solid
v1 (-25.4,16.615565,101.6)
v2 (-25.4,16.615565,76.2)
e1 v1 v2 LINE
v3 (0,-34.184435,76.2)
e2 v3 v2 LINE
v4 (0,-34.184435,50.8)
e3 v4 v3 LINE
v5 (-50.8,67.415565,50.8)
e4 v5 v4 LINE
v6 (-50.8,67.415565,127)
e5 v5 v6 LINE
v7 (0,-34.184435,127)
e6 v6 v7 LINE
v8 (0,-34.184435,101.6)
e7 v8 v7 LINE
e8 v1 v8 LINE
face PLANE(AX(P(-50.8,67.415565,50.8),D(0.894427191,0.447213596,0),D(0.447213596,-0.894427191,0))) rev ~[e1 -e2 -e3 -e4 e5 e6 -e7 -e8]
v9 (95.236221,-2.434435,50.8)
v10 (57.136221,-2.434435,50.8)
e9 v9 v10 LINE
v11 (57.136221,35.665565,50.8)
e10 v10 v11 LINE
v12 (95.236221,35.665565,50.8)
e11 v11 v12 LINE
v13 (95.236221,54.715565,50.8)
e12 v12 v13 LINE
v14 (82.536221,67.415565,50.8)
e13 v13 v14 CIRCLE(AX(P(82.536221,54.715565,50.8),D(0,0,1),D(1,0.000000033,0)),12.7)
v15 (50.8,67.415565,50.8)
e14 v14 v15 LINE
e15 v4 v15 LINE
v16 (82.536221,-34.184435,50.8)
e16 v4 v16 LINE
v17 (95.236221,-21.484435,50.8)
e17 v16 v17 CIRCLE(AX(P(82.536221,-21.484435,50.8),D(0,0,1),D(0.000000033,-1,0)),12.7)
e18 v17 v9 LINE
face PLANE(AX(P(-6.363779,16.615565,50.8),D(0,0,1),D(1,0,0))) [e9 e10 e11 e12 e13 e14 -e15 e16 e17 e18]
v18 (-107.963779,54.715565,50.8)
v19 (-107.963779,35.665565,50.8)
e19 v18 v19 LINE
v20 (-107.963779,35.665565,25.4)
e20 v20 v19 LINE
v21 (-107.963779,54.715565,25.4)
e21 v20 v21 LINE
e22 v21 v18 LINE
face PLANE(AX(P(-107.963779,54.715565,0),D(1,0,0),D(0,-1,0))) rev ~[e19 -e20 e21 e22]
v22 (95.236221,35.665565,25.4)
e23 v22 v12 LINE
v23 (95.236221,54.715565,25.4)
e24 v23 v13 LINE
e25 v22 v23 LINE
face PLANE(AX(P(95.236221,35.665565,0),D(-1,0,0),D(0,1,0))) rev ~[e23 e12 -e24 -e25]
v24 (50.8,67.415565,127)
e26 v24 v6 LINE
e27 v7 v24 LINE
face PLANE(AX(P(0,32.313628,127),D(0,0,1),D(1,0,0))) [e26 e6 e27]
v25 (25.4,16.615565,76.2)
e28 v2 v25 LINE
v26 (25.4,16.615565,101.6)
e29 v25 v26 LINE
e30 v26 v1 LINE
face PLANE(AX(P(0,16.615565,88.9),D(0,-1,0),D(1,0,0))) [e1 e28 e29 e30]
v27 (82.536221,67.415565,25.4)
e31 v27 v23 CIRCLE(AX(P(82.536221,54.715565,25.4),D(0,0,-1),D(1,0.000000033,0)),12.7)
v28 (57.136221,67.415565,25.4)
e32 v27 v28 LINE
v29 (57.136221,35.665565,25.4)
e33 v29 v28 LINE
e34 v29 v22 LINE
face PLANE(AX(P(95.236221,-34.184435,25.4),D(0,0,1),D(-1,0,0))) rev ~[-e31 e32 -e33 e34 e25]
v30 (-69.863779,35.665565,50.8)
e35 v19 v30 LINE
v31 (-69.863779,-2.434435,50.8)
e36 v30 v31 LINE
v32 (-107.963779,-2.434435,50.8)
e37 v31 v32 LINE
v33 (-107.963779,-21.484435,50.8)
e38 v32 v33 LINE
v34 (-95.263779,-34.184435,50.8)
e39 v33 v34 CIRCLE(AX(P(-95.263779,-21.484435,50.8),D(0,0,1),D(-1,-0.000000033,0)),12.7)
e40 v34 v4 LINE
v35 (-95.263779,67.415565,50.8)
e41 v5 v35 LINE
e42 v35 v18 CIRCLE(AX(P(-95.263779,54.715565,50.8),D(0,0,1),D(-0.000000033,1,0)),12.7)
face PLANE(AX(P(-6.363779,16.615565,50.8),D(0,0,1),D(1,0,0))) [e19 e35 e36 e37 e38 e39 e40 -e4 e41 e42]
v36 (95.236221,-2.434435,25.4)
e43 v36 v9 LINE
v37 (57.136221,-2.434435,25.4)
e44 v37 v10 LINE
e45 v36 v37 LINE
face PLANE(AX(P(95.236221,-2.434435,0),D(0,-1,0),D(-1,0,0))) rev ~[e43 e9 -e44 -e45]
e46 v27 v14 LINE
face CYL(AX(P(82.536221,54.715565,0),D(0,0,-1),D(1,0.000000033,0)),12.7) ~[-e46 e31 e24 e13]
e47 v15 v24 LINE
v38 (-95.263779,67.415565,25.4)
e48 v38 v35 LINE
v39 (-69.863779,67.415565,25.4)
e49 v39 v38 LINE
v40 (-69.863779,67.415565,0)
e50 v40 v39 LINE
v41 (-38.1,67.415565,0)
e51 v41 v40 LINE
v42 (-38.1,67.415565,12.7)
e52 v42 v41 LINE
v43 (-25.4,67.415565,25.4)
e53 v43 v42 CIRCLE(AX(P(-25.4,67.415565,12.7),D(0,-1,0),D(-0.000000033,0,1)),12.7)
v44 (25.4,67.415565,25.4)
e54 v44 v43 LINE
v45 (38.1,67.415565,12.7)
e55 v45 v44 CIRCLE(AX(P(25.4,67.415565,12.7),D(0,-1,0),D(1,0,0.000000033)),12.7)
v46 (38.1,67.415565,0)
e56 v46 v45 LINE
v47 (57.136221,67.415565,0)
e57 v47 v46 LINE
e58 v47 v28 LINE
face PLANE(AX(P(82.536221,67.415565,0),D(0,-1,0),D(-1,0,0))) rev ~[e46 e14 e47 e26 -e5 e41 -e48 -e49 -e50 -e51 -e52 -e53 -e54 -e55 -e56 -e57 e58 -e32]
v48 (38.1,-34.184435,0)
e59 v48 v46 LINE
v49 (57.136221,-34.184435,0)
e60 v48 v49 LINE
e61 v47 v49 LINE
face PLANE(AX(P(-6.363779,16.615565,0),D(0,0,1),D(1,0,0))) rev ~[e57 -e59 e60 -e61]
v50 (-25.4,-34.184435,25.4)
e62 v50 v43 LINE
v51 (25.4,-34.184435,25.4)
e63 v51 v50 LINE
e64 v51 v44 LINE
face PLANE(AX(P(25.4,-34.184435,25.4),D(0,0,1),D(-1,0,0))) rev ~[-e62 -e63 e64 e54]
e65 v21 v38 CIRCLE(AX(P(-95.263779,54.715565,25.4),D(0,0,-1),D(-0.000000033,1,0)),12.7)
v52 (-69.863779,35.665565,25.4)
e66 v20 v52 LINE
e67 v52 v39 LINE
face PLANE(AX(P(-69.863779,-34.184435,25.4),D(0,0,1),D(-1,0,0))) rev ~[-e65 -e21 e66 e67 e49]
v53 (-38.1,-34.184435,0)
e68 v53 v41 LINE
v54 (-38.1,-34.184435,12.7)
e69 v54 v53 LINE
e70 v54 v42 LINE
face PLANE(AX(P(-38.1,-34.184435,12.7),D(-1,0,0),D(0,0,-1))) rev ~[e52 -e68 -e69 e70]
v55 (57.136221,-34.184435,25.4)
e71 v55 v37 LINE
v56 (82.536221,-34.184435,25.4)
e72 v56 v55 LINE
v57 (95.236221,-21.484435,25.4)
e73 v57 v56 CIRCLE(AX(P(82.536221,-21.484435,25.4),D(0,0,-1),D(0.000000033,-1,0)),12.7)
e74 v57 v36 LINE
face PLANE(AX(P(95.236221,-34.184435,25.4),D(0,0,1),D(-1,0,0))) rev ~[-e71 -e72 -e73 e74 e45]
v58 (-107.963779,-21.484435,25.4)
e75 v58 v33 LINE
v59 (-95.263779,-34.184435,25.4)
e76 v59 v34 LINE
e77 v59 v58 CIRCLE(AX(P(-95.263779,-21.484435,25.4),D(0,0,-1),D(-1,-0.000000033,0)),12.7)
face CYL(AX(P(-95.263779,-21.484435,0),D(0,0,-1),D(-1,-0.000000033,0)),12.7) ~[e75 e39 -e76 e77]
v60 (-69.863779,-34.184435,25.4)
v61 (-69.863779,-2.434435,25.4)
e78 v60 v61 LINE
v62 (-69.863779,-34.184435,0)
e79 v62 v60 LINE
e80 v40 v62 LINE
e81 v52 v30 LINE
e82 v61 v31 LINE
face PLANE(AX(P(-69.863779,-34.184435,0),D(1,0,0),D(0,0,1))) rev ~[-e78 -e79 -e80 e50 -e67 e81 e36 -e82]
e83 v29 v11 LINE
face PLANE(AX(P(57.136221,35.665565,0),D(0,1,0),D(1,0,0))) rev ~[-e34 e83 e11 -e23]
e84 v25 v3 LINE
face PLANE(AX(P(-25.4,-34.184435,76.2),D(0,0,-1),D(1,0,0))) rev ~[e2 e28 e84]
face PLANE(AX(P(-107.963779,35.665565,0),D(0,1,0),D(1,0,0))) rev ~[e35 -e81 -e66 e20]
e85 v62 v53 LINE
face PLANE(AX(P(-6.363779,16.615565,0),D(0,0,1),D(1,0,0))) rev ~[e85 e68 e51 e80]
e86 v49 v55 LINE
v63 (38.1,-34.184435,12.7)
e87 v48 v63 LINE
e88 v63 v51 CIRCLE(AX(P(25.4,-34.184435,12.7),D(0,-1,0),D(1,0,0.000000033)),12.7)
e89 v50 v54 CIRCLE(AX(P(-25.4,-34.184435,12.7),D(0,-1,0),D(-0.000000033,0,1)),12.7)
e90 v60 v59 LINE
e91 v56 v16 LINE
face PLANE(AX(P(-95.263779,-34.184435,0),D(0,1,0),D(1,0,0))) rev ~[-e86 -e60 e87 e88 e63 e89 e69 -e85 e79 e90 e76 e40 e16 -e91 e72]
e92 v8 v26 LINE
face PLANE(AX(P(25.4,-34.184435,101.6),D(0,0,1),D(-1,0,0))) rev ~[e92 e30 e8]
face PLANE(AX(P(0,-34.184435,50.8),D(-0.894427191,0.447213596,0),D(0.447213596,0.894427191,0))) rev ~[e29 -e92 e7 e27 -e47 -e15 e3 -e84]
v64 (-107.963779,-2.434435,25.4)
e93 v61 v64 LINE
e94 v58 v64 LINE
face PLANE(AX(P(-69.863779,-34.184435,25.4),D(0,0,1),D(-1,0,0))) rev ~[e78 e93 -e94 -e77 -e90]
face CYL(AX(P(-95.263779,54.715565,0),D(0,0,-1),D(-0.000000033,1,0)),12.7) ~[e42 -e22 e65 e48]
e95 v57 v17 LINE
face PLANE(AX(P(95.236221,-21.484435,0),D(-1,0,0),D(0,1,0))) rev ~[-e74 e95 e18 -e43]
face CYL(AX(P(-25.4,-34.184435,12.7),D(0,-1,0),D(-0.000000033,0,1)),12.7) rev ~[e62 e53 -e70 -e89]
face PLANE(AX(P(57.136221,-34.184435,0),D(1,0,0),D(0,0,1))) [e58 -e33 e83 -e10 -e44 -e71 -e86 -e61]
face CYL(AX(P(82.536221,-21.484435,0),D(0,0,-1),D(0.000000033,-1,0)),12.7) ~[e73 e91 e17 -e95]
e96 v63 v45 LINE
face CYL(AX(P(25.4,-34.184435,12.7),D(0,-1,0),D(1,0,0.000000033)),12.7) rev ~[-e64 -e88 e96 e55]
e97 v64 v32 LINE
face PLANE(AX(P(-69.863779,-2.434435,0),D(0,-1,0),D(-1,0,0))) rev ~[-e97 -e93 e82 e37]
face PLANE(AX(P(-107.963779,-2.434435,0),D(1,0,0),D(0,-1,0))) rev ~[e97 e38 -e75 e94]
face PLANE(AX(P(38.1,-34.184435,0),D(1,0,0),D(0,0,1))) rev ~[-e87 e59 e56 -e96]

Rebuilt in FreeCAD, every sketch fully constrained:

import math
import FreeCAD as App
import Part
import Sketcher
from FreeCAD import Vector
Q = App.Units.Quantity


def add_polygon(sketch, points):
    """Adds a closed chain of lines whose ends are joined by coincident constraints."""
    first, n = sketch.GeometryCount, len(points)
    for a, b in zip(points, points[1:] + points[:1]):
        sketch.addGeometry(Part.LineSegment(App.Vector(*a, 0), App.Vector(*b, 0)), False)
    for i in range(n):
        sketch.addConstraint(Sketcher.Constraint("Coincident", first + i, 2, first + (i + 1) % n, 1))

doc = App.newDocument("Part")
params = doc.addObject("Spreadsheet::Sheet", "Params")
for row, (alias, value) in enumerate([
    ("sketch1_radius", "0.5 in"),
    ("sketch1_width", "7 in"),
    ("sketch1_width2", "1.5 in"),
    ("pad1_length", "2 in"),
    ("sketch2_width", "4 in"),
    ("pad2_length", "3 in"),
    ("sketch3_width", "2 in"),
    ("sketch3_height", "1 in"),
    ("pocket1_length", "2 in"),
    ("sketch4_radius", "0.5 in"),
    ("sketch4_width", "3 in"),
    ("sketch4_height", "0.5 in"),
    ("sketch5_height", "1 in"),
    ("sketch5_width", "1.5 in"),
    ("sketch6_height", "1 in"),
    ("sketch6_width", "1.5 in"),
], start=1):
    params.set(f"A{row}", alias)
    params.set(f"B{row}", "=" + value)
    params.setAlias(f"B{row}", alias)

body = doc.addObject("PartDesign::Body", "Body")

# Sketch on XY plane
sketch1 = body.newObject("Sketcher::SketchObject", "Sketch")
sketch1.AttachmentSupport = (doc.getObject("XY_Plane"), [""])
sketch1.MapMode = "FlatFace"
sketch1.addGeometry([
    Part.LineSegment(Vector(-108, 55, 0), Vector(-108, 36, 0)),  # 0
    Part.LineSegment(Vector(-108, 36, 0), Vector(-70, 36, 0)),  # 1
    Part.LineSegment(Vector(-70, 36, 0), Vector(-70, -2, 0)),  # 2
    Part.LineSegment(Vector(-70, -2, 0), Vector(-108, -2, 0)),  # 3
    Part.LineSegment(Vector(-108, -2, 0), Vector(-108, -21, 0)),  # 4
    Part.ArcOfCircle(Part.Circle(Vector(-95, -21, 0), Vector(0, 0, 1), 13), math.radians(-180), math.radians(-90)),  # 5
    Part.LineSegment(Vector(-95, -34, 0), Vector(83, -34, 0)),  # 6
    Part.ArcOfCircle(Part.Circle(Vector(83, -21, 0), Vector(0, 0, 1), 13), math.radians(-90), math.radians(0)),  # 7
    Part.LineSegment(Vector(95, -21, 0), Vector(95, -2, 0)),  # 8
    Part.LineSegment(Vector(95, -2, 0), Vector(57, -2, 0)),  # 9
    Part.LineSegment(Vector(57, -2, 0), Vector(57, 36, 0)),  # 10
    Part.LineSegment(Vector(57, 36, 0), Vector(95, 36, 0)),  # 11
    Part.LineSegment(Vector(95, 36, 0), Vector(95, 55, 0)),  # 12
    Part.ArcOfCircle(Part.Circle(Vector(83, 55, 0), Vector(0, 0, 1), 13), math.radians(0), math.radians(90)),  # 13
    Part.LineSegment(Vector(83, 67, 0), Vector(-95, 67, 0)),  # 14
    Part.ArcOfCircle(Part.Circle(Vector(-95, 55, 0), Vector(0, 0, 1), 13), math.radians(90), math.radians(180)),  # 15
], False)
sketch1.addConstraint([
    Sketcher.Constraint("Coincident", 0, 2, 1, 1),
    Sketcher.Constraint("Coincident", 1, 2, 2, 1),
    Sketcher.Constraint("Coincident", 2, 2, 3, 1),
    Sketcher.Constraint("Coincident", 3, 2, 4, 1),
    Sketcher.Constraint("Tangent", 4, 2, 5, 1),
    Sketcher.Constraint("Tangent", 5, 2, 6, 1),
    Sketcher.Constraint("Tangent", 6, 2, 7, 1),
    Sketcher.Constraint("Tangent", 7, 2, 8, 1),
    Sketcher.Constraint("Coincident", 8, 2, 9, 1),
    Sketcher.Constraint("Coincident", 9, 2, 10, 1),
    Sketcher.Constraint("Coincident", 10, 2, 11, 1),
    Sketcher.Constraint("Coincident", 11, 2, 12, 1),
    Sketcher.Constraint("Tangent", 12, 2, 13, 1),
    Sketcher.Constraint("Tangent", 13, 2, 14, 1),
    Sketcher.Constraint("Tangent", 14, 2, 15, 1),
    Sketcher.Constraint("Tangent", 15, 2, 0, 1),
    Sketcher.Constraint("Vertical", 0),
    Sketcher.Constraint("Horizontal", 1),
    Sketcher.Constraint("Vertical", 2),
    Sketcher.Constraint("Horizontal", 3),
    Sketcher.Constraint("Vertical", 4),
    Sketcher.Constraint("Horizontal", 6),
    Sketcher.Constraint("Vertical", 8),
    Sketcher.Constraint("Horizontal", 9),
    Sketcher.Constraint("Vertical", 10),
    Sketcher.Constraint("Horizontal", 11),
    Sketcher.Constraint("Vertical", 12),
    Sketcher.Constraint("Horizontal", 14),
    Sketcher.Constraint("Equal", 5, 7),
    Sketcher.Constraint("Equal", 7, 13),
    Sketcher.Constraint("Equal", 13, 15),
    Sketcher.Constraint("Horizontal", 3, 2, 8, 2),
    Sketcher.Constraint("Horizontal", 1, 2, 10, 2),
    Sketcher.Constraint("Vertical", 7, 3, 13, 3),
    Sketcher.Constraint("Vertical", 5, 3, 15, 3),
    Sketcher.Constraint("Equal", 3, 9),
    Sketcher.Constraint("Equal", 11, 2),
    Sketcher.Constraint("Equal", 0, 4),
    Sketcher.Constraint("Radius", 5, Q("0.5 in")),
    Sketcher.Constraint("DistanceX", 6, 1, 6, 2, Q("7 in")),
    Sketcher.Constraint("DistanceX", 1, 1, 1, 2, Q("1.5 in")),
    Sketcher.Constraint("DistanceY", 7, 3, 13, 3, Q("3 in")),
    Sketcher.Constraint("DistanceX", 5, 3, -1, 1, 95.263779),
    Sketcher.Constraint("DistanceY", 5, 3, -1, 1, 21.484435),
])
sketch1.setExpression("Constraints[38]", "Params.sketch1_radius")
sketch1.setExpression("Constraints[39]", "Params.sketch1_width")
sketch1.setExpression("Constraints[40]", "Params.sketch1_width2")
pad1 = body.newObject("PartDesign::Pad", "Pad")
pad1.Profile = sketch1
pad1.setExpression("Length", "Params.pad1_length")

# Sketch on XY plane
sketch2 = body.newObject("Sketcher::SketchObject", "Sketch001")
sketch2.AttachmentSupport = (doc.getObject("XY_Plane"), [""])
sketch2.MapMode = "FlatFace"
sketch2.AttachmentOffset = App.Placement(Vector(0, 0, 2 * 25.4), App.Rotation())
add_polygon(sketch2, [(-51, 67), (0, -34), (51, 67)])  # lines 0-2
sketch2.addConstraint([
    Sketcher.Constraint("Horizontal", 2),
    Sketcher.Constraint("PointOnObject", 0, 2, -2),
    Sketcher.Constraint("Equal", 0, 1),
    Sketcher.Constraint("DistanceX", 2, 2, 2, 1, Q("4 in")),
    Sketcher.Constraint("DistanceY", 0, 2, 1, 2, Q("4 in")),
    Sketcher.Constraint("DistanceY", 0, 2, -1, 1, 34.184435),
])
sketch2.setExpression("Constraints[6]", "Params.sketch2_width")
pad2 = body.newObject("PartDesign::Pad", "Pad001")
pad2.Profile = sketch2
pad2.setExpression("Length", "Params.pad2_length")

# Sketch on XZ plane
sketch3 = body.newObject("Sketcher::SketchObject", "Sketch002")
sketch3.AttachmentSupport = (doc.getObject("XZ_Plane"), [""])
sketch3.MapMode = "FlatFace"
sketch3.AttachmentOffset = App.Placement(Vector(0, 0, 34.184435), App.Rotation())
add_polygon(sketch3, [(-25, 102), (-25, 76), (25, 76), (25, 102)])  # lines 0-3
sketch3.addConstraint([
    Sketcher.Constraint("Vertical", 0),
    Sketcher.Constraint("Horizontal", 1),
    Sketcher.Constraint("Vertical", 2),
    Sketcher.Constraint("Horizontal", 3),
    Sketcher.Constraint("DistanceX", 1, 1, 1, 2, Q("2 in")),
    Sketcher.Constraint("DistanceY", 0, 2, 0, 1, Q("1 in")),
    Sketcher.Constraint("DistanceX", 0, 2, -1, 1, Q("1 in")),
    Sketcher.Constraint("DistanceY", -1, 1, 0, 2, Q("3 in")),
])
sketch3.setExpression("Constraints[8]", "Params.sketch3_width")
sketch3.setExpression("Constraints[9]", "Params.sketch3_height")
pocket1 = body.newObject("PartDesign::Pocket", "Pocket")
pocket1.Profile = sketch3
pocket1.setExpression("Length", "Params.pocket1_length")

# Sketch on XZ plane
sketch4 = body.newObject("Sketcher::SketchObject", "Sketch003")
sketch4.AttachmentSupport = (doc.getObject("XZ_Plane"), [""])
sketch4.MapMode = "FlatFace"
sketch4.AttachmentOffset = App.Placement(Vector(0, 0, 34.184435), App.Rotation())
sketch4.addGeometry([
    Part.LineSegment(Vector(-38, 13, 0), Vector(-38, 0, 0)),  # 0
    Part.LineSegment(Vector(-38, 0, 0), Vector(38, 0, 0)),  # 1
    Part.LineSegment(Vector(38, 0, 0), Vector(38, 13, 0)),  # 2
    Part.ArcOfCircle(Part.Circle(Vector(25, 13, 0), Vector(0, 0, 1), 13), math.radians(0), math.radians(90)),  # 3
    Part.LineSegment(Vector(25, 25, 0), Vector(-25, 25, 0)),  # 4
    Part.ArcOfCircle(Part.Circle(Vector(-25, 13, 0), Vector(0, 0, 1), 13), math.radians(90), math.radians(180)),  # 5
], False)
sketch4.addConstraint([
    Sketcher.Constraint("Coincident", 0, 2, 1, 1),
    Sketcher.Constraint("Coincident", 1, 2, 2, 1),
    Sketcher.Constraint("Tangent", 2, 2, 3, 1),
    Sketcher.Constraint("Tangent", 3, 2, 4, 1),
    Sketcher.Constraint("Tangent", 4, 2, 5, 1),
    Sketcher.Constraint("Tangent", 5, 2, 0, 1),
    Sketcher.Constraint("Vertical", 0),
    Sketcher.Constraint("Horizontal", 1),
    Sketcher.Constraint("Vertical", 2),
    Sketcher.Constraint("Horizontal", 4),
    Sketcher.Constraint("Equal", 3, 5),
    Sketcher.Constraint("Symmetric", 0, 2, 1, 2, -1, 1),
    Sketcher.Constraint("Radius", 3, Q("0.5 in")),
    Sketcher.Constraint("DistanceX", 1, 1, 1, 2, Q("3 in")),
    Sketcher.Constraint("DistanceY", 0, 2, 0, 1, Q("0.5 in")),
])
sketch4.setExpression("Constraints[12]", "Params.sketch4_radius")
sketch4.setExpression("Constraints[13]", "Params.sketch4_width")
sketch4.setExpression("Constraints[14]", "Params.sketch4_height")
pocket2 = body.newObject("PartDesign::Pocket", "Pocket001")
pocket2.Profile = sketch4
pocket2.Type = "ThroughAll"

# Sketch on XZ plane
sketch5 = body.newObject("Sketcher::SketchObject", "Sketch004")
sketch5.AttachmentSupport = (doc.getObject("XZ_Plane"), [""])
sketch5.MapMode = "FlatFace"
sketch5.AttachmentOffset = App.Placement(Vector(0, 0, 34.184435), App.Rotation())
add_polygon(sketch5, [(-70, 0), (-70, 25), (-108, 25), (-108, 0)])  # lines 0-3
sketch5.addConstraint([
    Sketcher.Constraint("Vertical", 0),
    Sketcher.Constraint("Horizontal", 1),
    Sketcher.Constraint("Vertical", 2),
    Sketcher.Constraint("Horizontal", 3),
    Sketcher.Constraint("PointOnObject", 2, 2, -1),
    Sketcher.Constraint("DistanceY", 0, 1, 0, 2, Q("1 in")),
    Sketcher.Constraint("DistanceX", 1, 2, 1, 1, Q("1.5 in")),
    Sketcher.Constraint("DistanceX", 0, 2, -1, 1, 69.863779),
])
sketch5.setExpression("Constraints[9]", "Params.sketch5_height")
sketch5.setExpression("Constraints[10]", "Params.sketch5_width")
pocket3 = body.newObject("PartDesign::Pocket", "Pocket002")
pocket3.Profile = sketch5
pocket3.Type = "ThroughAll"

# Sketch on XZ plane
sketch6 = body.newObject("Sketcher::SketchObject", "Sketch005")
sketch6.AttachmentSupport = (doc.getObject("XZ_Plane"), [""])
sketch6.MapMode = "FlatFace"
sketch6.AttachmentOffset = App.Placement(Vector(0, 0, 34.184435), App.Rotation())
add_polygon(sketch6, [(95, 0), (95, 25), (57, 25), (57, 0)])  # lines 0-3
sketch6.addConstraint([
    Sketcher.Constraint("Vertical", 0),
    Sketcher.Constraint("Horizontal", 1),
    Sketcher.Constraint("Vertical", 2),
    Sketcher.Constraint("Horizontal", 3),
    Sketcher.Constraint("PointOnObject", 2, 2, -1),
    Sketcher.Constraint("DistanceY", 0, 1, 0, 2, Q("1 in")),
    Sketcher.Constraint("DistanceX", 1, 2, 1, 1, Q("1.5 in")),
    Sketcher.Constraint("DistanceX", -1, 1, 0, 2, 95.236221),
])
sketch6.setExpression("Constraints[9]", "Params.sketch6_height")
sketch6.setExpression("Constraints[10]", "Params.sketch6_width")
pocket4 = body.newObject("PartDesign::Pocket", "Pocket003")
pocket4.Profile = sketch6
pocket4.Type = "ThroughAll"

doc.recompute()
